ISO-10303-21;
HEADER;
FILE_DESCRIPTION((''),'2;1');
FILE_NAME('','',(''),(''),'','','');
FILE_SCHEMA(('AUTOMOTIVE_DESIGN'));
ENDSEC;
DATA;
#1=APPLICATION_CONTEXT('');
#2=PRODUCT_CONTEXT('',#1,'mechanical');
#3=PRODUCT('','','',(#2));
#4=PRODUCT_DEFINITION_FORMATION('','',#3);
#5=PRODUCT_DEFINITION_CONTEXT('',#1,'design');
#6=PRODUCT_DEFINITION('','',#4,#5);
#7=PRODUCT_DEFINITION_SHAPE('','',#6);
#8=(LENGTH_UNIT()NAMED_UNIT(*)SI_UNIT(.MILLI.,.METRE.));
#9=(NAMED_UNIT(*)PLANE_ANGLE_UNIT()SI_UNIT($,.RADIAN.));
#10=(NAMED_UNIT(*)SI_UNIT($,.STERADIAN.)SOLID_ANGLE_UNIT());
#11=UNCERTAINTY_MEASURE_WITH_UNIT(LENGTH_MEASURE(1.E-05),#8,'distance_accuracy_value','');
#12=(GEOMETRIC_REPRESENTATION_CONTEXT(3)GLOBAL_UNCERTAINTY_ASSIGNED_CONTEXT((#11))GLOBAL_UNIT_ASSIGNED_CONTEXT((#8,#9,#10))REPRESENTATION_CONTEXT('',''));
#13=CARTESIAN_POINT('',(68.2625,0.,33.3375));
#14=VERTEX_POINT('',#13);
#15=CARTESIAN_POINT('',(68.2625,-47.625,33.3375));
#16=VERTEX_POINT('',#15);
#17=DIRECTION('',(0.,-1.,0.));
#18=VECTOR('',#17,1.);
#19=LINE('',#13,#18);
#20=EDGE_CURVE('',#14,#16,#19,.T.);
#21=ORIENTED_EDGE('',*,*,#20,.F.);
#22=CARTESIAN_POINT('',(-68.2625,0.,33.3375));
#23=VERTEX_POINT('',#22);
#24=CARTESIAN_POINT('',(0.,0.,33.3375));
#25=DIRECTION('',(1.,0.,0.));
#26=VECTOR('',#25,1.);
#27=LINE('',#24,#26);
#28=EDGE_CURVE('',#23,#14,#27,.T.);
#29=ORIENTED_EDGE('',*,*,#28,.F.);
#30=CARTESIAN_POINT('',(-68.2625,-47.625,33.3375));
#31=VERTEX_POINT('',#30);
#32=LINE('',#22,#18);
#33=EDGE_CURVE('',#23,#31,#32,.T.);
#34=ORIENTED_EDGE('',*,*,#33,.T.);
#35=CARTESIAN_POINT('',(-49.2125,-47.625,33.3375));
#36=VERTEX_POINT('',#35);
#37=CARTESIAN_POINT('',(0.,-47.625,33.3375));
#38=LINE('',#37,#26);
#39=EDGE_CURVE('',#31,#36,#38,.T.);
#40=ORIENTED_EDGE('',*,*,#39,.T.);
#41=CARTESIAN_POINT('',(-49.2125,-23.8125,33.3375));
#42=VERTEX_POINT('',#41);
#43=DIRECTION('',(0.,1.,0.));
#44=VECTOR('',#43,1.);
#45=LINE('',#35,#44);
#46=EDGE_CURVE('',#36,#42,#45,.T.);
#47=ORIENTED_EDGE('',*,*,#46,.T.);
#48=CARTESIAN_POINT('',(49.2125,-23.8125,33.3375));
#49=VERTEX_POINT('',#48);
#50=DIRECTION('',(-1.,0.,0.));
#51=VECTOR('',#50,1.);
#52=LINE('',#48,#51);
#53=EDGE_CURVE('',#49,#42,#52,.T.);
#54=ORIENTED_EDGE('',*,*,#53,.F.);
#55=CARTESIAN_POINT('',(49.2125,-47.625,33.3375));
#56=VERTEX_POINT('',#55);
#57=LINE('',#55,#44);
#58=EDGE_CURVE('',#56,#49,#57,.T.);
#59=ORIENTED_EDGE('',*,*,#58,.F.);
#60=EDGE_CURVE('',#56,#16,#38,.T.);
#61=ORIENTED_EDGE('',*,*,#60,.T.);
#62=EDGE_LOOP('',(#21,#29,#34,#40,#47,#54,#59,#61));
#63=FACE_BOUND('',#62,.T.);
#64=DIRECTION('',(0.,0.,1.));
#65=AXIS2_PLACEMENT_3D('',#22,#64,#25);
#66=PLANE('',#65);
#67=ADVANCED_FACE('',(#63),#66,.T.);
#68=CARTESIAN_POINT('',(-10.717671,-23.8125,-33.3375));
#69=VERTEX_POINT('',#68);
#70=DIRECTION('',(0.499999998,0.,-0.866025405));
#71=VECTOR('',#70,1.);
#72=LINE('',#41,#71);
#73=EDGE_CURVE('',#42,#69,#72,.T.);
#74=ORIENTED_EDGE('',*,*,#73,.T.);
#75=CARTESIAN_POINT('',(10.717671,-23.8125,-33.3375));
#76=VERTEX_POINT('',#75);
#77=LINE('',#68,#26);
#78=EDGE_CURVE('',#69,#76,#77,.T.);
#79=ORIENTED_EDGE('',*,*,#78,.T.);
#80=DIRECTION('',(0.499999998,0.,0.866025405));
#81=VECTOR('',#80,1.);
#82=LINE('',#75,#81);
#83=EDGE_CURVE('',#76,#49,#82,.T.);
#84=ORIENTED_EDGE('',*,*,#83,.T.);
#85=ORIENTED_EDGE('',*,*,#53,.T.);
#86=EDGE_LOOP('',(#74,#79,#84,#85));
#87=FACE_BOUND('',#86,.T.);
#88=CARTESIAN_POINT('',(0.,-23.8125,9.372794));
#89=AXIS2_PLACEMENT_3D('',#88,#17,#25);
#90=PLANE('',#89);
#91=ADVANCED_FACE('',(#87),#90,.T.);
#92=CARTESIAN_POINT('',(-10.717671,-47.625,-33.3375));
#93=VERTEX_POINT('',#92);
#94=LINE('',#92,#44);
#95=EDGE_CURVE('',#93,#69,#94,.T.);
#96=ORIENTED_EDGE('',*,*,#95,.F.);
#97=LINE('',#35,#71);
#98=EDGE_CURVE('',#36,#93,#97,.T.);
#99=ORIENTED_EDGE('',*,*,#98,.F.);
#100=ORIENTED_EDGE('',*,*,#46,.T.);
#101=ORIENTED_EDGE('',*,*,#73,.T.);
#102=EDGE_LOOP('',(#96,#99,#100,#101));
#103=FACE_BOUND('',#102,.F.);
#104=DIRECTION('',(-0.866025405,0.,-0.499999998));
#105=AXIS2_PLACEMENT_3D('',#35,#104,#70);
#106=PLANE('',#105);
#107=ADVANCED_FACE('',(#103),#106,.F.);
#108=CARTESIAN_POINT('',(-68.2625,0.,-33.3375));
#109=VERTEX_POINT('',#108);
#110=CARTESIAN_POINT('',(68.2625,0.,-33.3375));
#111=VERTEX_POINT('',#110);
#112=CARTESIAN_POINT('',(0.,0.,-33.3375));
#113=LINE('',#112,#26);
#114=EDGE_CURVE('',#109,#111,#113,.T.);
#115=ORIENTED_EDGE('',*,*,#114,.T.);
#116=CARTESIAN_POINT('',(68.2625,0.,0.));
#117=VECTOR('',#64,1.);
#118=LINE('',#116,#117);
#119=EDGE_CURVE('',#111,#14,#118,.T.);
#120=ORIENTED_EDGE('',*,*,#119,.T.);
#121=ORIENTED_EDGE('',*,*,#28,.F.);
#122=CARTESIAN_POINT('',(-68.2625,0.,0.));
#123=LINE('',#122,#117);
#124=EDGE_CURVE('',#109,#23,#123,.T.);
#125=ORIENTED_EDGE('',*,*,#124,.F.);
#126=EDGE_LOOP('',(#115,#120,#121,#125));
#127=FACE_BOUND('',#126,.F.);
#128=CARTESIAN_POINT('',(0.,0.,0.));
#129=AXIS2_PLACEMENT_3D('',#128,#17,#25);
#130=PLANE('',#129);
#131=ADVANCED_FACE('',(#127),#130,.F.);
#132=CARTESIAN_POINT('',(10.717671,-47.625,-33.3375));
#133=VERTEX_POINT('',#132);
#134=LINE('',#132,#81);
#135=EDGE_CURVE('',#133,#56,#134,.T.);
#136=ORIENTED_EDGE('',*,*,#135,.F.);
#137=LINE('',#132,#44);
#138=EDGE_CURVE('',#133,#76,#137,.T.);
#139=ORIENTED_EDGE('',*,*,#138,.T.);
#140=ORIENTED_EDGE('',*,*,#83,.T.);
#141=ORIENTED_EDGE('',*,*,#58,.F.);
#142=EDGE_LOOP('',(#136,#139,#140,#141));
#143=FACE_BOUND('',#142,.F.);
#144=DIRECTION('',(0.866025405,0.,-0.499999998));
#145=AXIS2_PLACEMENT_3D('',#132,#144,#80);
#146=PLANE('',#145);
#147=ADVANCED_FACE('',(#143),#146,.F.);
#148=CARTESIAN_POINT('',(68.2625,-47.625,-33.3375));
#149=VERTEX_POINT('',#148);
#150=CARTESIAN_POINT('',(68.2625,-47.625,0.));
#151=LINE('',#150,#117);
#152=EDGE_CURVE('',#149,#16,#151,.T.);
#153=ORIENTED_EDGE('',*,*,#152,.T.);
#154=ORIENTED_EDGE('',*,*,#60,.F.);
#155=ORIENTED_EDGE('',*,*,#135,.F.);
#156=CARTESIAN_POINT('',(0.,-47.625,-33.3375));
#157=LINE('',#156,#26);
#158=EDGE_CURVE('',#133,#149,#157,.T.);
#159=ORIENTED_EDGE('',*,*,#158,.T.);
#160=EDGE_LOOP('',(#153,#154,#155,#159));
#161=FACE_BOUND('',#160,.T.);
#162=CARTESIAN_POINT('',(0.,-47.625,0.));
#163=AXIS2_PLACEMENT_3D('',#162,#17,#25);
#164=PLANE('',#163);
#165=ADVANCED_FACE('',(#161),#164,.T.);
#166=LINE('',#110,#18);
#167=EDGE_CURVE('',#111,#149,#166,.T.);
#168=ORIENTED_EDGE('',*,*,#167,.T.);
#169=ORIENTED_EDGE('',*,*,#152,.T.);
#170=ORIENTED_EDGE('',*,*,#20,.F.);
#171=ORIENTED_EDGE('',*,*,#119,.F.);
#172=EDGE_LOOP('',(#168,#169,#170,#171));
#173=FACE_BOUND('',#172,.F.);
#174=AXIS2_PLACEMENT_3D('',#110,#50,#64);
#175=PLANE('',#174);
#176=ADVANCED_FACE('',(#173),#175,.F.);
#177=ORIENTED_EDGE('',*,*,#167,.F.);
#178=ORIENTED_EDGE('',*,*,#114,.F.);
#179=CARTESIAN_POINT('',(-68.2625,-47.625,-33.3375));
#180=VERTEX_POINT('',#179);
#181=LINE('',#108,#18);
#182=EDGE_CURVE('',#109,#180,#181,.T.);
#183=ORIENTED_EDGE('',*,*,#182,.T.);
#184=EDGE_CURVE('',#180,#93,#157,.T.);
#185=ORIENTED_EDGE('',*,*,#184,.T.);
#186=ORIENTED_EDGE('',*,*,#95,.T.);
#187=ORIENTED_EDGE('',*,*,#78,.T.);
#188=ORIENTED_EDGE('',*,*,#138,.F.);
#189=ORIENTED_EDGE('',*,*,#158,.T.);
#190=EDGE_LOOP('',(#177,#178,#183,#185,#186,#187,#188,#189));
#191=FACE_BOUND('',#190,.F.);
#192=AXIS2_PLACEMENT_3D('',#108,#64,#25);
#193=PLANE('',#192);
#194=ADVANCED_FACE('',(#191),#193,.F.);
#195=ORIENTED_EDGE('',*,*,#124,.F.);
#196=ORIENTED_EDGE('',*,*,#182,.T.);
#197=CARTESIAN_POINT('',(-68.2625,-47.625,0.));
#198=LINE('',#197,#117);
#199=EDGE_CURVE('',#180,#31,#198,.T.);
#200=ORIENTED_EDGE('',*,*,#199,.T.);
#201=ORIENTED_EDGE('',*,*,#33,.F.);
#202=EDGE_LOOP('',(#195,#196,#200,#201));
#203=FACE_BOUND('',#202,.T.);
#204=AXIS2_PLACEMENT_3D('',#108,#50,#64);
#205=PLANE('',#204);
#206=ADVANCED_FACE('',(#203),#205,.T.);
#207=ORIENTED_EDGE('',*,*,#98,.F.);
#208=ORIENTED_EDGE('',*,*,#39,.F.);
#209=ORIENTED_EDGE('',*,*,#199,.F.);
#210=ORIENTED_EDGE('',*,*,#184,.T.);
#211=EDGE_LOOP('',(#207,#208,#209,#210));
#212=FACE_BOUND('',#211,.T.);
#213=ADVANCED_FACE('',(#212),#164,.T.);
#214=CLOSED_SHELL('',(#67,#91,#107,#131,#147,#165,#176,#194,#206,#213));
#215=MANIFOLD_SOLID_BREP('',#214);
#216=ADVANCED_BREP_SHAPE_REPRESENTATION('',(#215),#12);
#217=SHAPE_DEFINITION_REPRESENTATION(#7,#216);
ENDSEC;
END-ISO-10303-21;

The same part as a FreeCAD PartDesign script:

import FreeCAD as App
import Part
import Sketcher

V = App.Vector
Q = App.Units.Quantity

doc = App.newDocument("Part")
body = doc.addObject("PartDesign::Body", "Body")

# Sketch on XZ plane
sketch1 = body.newObject("Sketcher::SketchObject", "Sketch")
sketch1.AttachmentSupport = (doc.getObject("XZ_Plane"), [""])
sketch1.MapMode = "FlatFace"
sketch1.addGeometry([
    Part.LineSegment(V(-68, 33, 0), V(-68, -33, 0)),
    Part.LineSegment(V(-68, -33, 0), V(68, -33, 0)),
    Part.LineSegment(V(68, -33, 0), V(68, 33, 0)),
    Part.LineSegment(V(68, 33, 0), V(-68, 33, 0)),
], False)
sketch1.addConstraint([
    Sketcher.Constraint("Coincident", 0, 2, 1, 1),
    Sketcher.Constraint("Coincident", 1, 2, 2, 1),
    Sketcher.Constraint("Coincident", 2, 2, 3, 1),
    Sketcher.Constraint("Coincident", 3, 2, 0, 1),
    Sketcher.Constraint("Vertical", 0),
    Sketcher.Constraint("Horizontal", 1),
    Sketcher.Constraint("Vertical", 2),
    Sketcher.Constraint("Horizontal", 3),
    Sketcher.Constraint("Symmetric", 0, 2, 2, 2, -1, 1),
    Sketcher.Constraint("DistanceX", 1, 1, 1, 2, Q("5.375 in")),
    Sketcher.Constraint("DistanceY", 0, 2, 0, 1, Q("2.625 in")),
])
pad1 = body.newObject("PartDesign::Pad", "Pad")
pad1.Profile = sketch1
pad1.Length = Q("1.875 in")

# Sketch on XZ plane
sketch2 = body.newObject("Sketcher::SketchObject", "Sketch001")
sketch2.AttachmentSupport = (doc.getObject("XZ_Plane"), [""])
sketch2.MapMode = "FlatFace"
sketch2.AttachmentOffset = App.Placement(V(0, 0, 1.875 * 25.4), App.Rotation())
sketch2.addGeometry([
    Part.LineSegment(V(49, 33, 0), V(-49, 33, 0)),
    Part.LineSegment(V(-49, 33, 0), V(-11, -33, 0)),
    Part.LineSegment(V(-11, -33, 0), V(11, -33, 0)),
    Part.LineSegment(V(11, -33, 0), V(49, 33, 0)),
], False)
sketch2.addConstraint([
    Sketcher.Constraint("Coincident", 0, 2, 1, 1),
    Sketcher.Constraint("Coincident", 1, 2, 2, 1),
    Sketcher.Constraint("Coincident", 2, 2, 3, 1),
    Sketcher.Constraint("Coincident", 3, 2, 0, 1),
    Sketcher.Constraint("Horizontal", 0),
    Sketcher.Constraint("Horizontal", 2),
    Sketcher.Constraint("Equal", 1, 3),
    Sketcher.Constraint("Angle", 1, Q("-60 deg")),
    Sketcher.Constraint("DistanceX", 0, 2, 0, 1, Q("3.875 in")),
    Sketcher.Constraint("DistanceX", 0, 2, -1, 1, Q("1.9375 in")),
    Sketcher.Constraint("DistanceY", -1, 1, 0, 2, Q("1.3125 in")),
    Sketcher.Constraint("DistanceY", 1, 2, -1, 1, Q("1.3125 in")),
])
pocket1 = body.newObject("PartDesign::Pocket", "Pocket")
pocket1.Profile = sketch2
pocket1.Length = Q("0.9375 in")

doc.recompute()
